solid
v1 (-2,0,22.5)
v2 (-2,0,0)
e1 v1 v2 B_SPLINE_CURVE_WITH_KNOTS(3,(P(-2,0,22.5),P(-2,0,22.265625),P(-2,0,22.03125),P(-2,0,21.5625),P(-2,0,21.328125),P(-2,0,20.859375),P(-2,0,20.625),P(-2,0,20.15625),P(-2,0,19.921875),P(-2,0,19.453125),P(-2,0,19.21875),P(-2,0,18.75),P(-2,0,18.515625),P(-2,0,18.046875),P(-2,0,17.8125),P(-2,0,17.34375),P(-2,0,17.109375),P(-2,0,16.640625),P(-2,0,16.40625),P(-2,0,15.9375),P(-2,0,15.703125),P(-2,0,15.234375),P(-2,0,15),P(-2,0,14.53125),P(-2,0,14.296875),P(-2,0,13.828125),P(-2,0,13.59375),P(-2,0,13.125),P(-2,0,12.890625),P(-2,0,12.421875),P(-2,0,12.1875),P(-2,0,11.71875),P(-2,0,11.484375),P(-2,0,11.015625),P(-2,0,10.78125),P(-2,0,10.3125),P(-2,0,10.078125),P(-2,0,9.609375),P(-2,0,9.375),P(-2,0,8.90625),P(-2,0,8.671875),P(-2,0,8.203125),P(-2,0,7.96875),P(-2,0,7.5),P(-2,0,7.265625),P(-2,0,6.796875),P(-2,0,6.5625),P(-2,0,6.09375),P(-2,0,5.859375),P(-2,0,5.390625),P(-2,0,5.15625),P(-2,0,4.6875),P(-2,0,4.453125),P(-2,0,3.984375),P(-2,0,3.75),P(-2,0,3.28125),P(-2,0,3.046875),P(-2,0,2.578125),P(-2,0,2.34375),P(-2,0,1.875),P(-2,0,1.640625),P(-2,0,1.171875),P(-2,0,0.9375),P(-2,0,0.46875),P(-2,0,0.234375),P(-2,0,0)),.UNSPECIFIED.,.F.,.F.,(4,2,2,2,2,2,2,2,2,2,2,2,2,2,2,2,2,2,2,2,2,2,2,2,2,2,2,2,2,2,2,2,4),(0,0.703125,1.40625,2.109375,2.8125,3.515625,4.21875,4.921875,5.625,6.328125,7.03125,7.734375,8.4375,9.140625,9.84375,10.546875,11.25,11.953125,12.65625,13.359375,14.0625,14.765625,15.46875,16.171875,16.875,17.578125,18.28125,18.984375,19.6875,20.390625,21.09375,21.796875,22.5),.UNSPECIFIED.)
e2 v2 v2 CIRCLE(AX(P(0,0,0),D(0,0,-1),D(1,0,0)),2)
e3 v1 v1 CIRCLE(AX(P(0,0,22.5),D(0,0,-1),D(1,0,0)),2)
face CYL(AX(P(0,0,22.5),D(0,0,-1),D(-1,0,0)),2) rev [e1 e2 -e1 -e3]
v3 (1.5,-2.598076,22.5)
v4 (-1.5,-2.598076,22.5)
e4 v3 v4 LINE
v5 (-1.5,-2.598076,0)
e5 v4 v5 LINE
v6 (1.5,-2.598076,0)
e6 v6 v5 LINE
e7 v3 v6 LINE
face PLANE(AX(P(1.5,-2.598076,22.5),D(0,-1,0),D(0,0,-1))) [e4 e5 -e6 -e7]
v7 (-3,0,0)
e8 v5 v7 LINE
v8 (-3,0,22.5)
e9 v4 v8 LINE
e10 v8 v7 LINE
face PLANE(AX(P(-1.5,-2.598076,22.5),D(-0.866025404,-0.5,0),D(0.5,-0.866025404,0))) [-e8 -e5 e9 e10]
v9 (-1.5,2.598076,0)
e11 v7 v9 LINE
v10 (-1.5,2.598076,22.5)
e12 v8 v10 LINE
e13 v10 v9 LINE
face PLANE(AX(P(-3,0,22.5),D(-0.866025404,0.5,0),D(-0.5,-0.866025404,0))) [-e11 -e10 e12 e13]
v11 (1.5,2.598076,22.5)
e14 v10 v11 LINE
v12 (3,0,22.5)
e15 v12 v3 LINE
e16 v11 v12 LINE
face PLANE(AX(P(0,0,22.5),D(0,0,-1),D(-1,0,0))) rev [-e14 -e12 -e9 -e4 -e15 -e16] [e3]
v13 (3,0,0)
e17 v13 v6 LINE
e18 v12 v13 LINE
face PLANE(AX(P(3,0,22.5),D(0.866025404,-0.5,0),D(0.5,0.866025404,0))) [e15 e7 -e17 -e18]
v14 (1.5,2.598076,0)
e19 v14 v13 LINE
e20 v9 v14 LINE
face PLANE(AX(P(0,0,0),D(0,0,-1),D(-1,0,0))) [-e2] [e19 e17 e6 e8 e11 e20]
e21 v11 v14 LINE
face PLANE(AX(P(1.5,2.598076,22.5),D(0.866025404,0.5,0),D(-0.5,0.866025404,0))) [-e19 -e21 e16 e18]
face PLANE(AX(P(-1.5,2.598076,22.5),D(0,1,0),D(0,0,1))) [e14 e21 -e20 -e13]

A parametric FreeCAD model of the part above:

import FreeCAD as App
import Part
import Sketcher
Q = App.Units.Quantity


def add_polygon(sketch, points):
    """Adds a closed chain of lines whose ends are joined by coincident constraints."""
    first, n = sketch.GeometryCount, len(points)
    for a, b in zip(points, points[1:] + points[:1]):
        sketch.addGeometry(Part.LineSegment(App.Vector(*a, 0), App.Vector(*b, 0)), False)
    for i in range(n):
        sketch.addConstraint(Sketcher.Constraint("Coincident", first + i, 2, first + (i + 1) % n, 1))

doc = App.newDocument("Part")
params = doc.addObject("Spreadsheet::Sheet", "Params")
for row, (alias, value) in enumerate([
    ("sketch1_diameter", "4 mm"),
    ("sketch1_width", "3 mm"),
    ("sketch1_length", "3 mm"),
    ("pad1_length", "22.5 mm"),
], start=1):
    params.set(f"A{row}", alias)
    params.set(f"B{row}", "=" + value)
    params.setAlias(f"B{row}", alias)

body = doc.addObject("PartDesign::Body", "Body")

sketch1 = body.newObject("Sketcher::SketchObject", "Sketch")
sketch1.AttachmentSupport = (doc.getObject("XY_Plane"), [""])
sketch1.MapMode = "FlatFace"
add_polygon(sketch1, [(-1.5, -2.6), (-3, 0), (-1.5, 2.6), (1.5, 2.6), (3, 0), (1.5, -2.6)])
sketch1.addGeometry(Part.Circle(App.Vector(0, 0, 0), App.Vector(0, 0, 1), 2), False)
sketch1.addConstraint([
    Sketcher.Constraint("Horizontal", 2),
    Sketcher.Constraint("Horizontal", 5),
    Sketcher.Constraint("Coincident", 6, 3, -1, 1),
    Sketcher.Constraint("Symmetric", 0, 2, 3, 2, -1, 1),
    Sketcher.Constraint("Symmetric", 1, 2, 4, 2, -1, 1),
    Sketcher.Constraint("PointOnObject", 0, 2, -1),
    Sketcher.Constraint("Parallel", 0, 3),
    Sketcher.Constraint("Vertical", 2, 2, 4, 2),
    Sketcher.Constraint("Diameter", 6, Q("4 mm")),
    Sketcher.Constraint("DistanceX", 2, 1, 2, 2, Q("3 mm")),
    Sketcher.Constraint("Angle", 0, Q("120 deg")),
    Sketcher.Constraint("Distance", 0, Q("3 mm")),
])
sketch1.setExpression("Constraints[14]", "Params.sketch1_diameter")
sketch1.setExpression("Constraints[15]", "Params.sketch1_width")
sketch1.setExpression("Constraints[17]", "Params.sketch1_length")
pad1 = body.newObject("PartDesign::Pad", "Pad")
pad1.Profile = sketch1
pad1.setExpression("Length", "Params.pad1_length")

doc.recompute()
